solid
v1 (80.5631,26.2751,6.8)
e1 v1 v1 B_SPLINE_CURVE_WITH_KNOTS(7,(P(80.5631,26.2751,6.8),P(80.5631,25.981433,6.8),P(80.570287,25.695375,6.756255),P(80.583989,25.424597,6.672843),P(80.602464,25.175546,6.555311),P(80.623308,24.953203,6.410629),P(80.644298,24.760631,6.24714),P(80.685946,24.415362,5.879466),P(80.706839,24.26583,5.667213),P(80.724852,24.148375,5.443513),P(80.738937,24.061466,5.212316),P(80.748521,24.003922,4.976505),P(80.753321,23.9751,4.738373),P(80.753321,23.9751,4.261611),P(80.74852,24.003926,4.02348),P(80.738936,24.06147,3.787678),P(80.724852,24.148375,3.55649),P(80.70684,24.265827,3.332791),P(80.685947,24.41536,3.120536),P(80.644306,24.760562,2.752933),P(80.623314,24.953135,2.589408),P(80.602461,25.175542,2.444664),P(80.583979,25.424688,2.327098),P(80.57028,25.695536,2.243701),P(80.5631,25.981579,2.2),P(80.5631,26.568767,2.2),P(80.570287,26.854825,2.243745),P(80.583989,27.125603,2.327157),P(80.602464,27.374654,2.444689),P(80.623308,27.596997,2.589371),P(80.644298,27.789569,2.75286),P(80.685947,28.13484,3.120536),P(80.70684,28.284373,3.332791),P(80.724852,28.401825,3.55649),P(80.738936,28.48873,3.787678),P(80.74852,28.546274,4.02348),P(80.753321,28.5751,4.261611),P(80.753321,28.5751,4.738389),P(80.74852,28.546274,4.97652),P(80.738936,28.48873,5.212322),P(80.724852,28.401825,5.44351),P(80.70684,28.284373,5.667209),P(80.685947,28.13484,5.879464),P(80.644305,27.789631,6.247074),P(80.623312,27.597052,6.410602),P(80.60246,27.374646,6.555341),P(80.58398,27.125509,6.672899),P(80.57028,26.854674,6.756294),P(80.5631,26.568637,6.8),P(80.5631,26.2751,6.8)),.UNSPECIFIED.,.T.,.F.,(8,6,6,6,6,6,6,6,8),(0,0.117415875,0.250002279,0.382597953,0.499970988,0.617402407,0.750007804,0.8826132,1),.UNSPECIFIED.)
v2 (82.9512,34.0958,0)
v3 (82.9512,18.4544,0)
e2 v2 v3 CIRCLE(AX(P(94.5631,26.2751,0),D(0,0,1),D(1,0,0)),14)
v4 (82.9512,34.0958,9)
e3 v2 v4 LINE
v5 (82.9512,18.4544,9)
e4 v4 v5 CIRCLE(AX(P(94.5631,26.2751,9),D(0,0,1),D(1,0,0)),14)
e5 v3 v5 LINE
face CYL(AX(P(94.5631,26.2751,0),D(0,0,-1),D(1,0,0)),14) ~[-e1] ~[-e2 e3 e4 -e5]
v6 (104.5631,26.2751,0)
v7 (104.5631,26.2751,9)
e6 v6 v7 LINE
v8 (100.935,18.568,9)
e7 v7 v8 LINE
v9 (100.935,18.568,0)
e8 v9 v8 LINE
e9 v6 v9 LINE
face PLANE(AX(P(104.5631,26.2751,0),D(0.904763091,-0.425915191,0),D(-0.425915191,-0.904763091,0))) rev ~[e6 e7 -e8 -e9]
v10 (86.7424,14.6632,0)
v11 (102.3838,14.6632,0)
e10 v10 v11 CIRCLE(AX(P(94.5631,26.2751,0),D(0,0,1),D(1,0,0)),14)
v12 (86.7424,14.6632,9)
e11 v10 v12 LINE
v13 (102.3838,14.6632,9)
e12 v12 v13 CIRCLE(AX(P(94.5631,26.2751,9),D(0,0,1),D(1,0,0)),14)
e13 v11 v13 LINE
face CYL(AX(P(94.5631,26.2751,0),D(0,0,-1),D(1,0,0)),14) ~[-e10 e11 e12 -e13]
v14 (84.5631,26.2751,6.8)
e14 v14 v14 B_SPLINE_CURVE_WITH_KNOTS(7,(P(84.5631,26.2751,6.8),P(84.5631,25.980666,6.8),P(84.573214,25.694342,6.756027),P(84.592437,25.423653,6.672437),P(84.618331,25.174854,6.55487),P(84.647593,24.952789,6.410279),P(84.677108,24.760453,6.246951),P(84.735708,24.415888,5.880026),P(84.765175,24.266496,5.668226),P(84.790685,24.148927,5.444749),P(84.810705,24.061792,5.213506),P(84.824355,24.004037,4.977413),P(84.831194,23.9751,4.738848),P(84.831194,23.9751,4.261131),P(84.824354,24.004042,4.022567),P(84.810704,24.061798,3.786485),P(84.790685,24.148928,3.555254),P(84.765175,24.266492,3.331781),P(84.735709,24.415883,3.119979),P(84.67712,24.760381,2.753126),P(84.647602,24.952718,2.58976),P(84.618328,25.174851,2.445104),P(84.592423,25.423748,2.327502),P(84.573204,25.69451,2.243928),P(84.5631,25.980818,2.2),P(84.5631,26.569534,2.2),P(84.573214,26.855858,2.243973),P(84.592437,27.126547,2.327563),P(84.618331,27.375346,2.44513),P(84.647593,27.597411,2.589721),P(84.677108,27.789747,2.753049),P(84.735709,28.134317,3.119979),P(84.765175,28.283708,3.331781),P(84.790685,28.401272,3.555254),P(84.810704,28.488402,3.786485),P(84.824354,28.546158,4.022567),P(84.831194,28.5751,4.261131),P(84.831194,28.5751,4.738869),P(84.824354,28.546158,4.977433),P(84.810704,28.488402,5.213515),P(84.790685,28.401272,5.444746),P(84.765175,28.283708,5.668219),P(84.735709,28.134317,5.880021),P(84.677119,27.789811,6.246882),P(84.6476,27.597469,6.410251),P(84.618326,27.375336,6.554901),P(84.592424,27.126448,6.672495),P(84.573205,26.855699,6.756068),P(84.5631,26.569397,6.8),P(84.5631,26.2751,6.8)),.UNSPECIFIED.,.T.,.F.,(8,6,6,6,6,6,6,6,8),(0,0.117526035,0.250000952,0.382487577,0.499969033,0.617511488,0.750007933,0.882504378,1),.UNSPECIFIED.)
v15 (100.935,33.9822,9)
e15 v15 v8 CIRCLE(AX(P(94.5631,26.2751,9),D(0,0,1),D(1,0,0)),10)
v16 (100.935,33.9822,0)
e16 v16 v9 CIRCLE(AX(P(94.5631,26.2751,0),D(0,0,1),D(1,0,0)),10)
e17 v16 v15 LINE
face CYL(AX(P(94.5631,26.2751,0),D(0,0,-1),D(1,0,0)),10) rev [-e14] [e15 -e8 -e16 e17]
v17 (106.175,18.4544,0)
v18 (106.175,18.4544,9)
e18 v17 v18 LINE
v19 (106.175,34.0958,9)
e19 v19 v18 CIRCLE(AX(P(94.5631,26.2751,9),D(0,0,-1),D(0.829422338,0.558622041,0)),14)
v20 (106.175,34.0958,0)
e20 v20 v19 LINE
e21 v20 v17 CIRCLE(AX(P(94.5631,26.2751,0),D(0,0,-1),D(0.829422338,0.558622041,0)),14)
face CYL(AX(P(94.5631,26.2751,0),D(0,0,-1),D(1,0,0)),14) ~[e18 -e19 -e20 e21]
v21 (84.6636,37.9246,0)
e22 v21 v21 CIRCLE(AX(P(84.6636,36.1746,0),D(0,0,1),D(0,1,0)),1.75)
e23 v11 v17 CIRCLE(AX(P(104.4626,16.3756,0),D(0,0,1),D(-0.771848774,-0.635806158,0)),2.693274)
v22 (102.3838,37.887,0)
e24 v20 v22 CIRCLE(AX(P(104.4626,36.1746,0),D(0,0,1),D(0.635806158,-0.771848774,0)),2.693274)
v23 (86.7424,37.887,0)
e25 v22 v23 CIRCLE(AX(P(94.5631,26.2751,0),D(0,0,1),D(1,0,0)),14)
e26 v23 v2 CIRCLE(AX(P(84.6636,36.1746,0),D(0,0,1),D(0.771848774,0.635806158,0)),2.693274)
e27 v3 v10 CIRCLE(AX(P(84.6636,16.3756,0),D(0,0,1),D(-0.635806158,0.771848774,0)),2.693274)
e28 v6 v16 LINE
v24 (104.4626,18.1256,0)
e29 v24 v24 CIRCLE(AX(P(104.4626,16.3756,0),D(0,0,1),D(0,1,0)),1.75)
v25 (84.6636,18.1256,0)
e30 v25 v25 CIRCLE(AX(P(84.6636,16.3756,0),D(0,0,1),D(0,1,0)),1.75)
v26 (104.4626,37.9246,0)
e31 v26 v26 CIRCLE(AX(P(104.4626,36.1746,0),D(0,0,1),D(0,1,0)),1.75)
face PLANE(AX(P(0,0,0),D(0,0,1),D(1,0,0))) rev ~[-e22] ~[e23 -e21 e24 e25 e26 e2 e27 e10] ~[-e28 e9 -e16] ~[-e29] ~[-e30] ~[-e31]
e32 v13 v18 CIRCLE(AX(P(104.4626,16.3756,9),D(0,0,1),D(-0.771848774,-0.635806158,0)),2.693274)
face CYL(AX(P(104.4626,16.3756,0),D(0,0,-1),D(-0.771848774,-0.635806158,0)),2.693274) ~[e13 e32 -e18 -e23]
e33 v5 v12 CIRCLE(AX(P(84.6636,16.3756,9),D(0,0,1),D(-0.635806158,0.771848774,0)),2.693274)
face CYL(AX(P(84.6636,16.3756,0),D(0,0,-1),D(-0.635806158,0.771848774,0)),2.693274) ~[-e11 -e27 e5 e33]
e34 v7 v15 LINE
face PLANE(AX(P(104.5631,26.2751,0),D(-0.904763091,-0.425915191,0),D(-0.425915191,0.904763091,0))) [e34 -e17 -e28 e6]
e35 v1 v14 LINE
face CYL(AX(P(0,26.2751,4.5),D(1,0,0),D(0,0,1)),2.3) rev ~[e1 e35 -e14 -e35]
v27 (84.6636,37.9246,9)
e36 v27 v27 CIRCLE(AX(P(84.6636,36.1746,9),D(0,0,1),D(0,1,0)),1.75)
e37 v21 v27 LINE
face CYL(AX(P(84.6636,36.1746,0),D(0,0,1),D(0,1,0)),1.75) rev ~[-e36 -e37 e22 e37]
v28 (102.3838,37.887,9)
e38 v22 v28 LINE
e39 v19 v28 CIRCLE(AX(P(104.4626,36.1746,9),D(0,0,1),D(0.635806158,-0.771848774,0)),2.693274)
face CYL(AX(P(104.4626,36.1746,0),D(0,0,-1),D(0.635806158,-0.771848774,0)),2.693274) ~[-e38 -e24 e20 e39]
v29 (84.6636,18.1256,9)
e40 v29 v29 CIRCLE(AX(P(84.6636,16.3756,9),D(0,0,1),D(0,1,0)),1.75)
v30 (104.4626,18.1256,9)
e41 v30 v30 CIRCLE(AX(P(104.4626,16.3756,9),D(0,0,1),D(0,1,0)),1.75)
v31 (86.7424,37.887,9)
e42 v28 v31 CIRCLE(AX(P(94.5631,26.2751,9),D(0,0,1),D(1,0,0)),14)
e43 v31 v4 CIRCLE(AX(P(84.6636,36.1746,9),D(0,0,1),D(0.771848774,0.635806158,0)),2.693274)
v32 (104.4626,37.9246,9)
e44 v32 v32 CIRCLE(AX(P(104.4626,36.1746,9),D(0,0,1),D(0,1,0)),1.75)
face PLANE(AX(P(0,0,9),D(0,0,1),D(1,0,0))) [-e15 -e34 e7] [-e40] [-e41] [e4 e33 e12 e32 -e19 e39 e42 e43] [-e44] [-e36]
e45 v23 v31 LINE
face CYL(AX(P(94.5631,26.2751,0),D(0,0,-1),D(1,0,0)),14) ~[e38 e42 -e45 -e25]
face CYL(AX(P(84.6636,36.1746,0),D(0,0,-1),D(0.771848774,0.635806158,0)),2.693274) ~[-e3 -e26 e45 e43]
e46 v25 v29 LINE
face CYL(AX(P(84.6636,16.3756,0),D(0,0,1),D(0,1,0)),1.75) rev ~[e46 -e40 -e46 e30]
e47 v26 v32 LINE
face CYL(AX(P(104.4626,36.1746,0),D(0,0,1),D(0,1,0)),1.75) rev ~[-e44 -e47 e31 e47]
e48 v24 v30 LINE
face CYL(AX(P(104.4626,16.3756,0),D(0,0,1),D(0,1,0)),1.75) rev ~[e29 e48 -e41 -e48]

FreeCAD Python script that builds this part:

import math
import FreeCAD as App
import Part
import Sketcher

doc = App.newDocument("Part")
params = doc.addObject("Spreadsheet::Sheet", "Params")
for row, (alias, value) in enumerate([
    ("sketch1_radius", "14 mm"),
    ("sketch1_radius2", "10 mm"),
    ("pad1_length", "9 mm"),
    ("sketch2_diameter", "3.5 mm"),
    ("hole_diameter", "3.5 mm"),
    ("sketch3_diameter", "4.6 mm"),
    ("hole2_diameter", "4.6 mm"),
    ("hole2_depth", "87.5 mm"),
], start=1):
    params.set(f"A{row}", alias)
    params.set(f"B{row}", "=" + value)
    params.setAlias(f"B{row}", alias)

body = doc.addObject("PartDesign::Body", "Body")

# Sketch on XY plane
sketch1 = body.newObject("Sketcher::SketchObject", "Sketch")
sketch1.AttachmentSupport = (doc.getObject("XY_Plane"), [""])
sketch1.MapMode = "FlatFace"
sketch1.addGeometry(Part.ArcOfCircle(Part.Circle(App.Vector(94.6, 26.3, 0), App.Vector(0, 0, 1), 14), math.radians(56), math.radians(124)), False)
sketch1.addGeometry(Part.ArcOfCircle(Part.Circle(App.Vector(84.7, 36.2, 0), App.Vector(0, 0, 1), 2.7), math.radians(39), math.radians(231)), False)
sketch1.addGeometry(Part.ArcOfCircle(Part.Circle(App.Vector(94.6, 26.3, 0), App.Vector(0, 0, 1), 14), math.radians(146), math.radians(214)), False)
sketch1.addGeometry(Part.ArcOfCircle(Part.Circle(App.Vector(84.7, 16.4, 0), App.Vector(0, 0, 1), 2.7), math.radians(129), math.radians(321)), False)
sketch1.addGeometry(Part.ArcOfCircle(Part.Circle(App.Vector(94.6, 26.3, 0), App.Vector(0, 0, 1), 14), math.radians(-124), math.radians(-56)), False)
sketch1.addGeometry(Part.ArcOfCircle(Part.Circle(App.Vector(104.5, 16.4, 0), App.Vector(0, 0, 1), 2.7), math.radians(-141), math.radians(51)), False)
sketch1.addGeometry(Part.ArcOfCircle(Part.Circle(App.Vector(94.6, 26.3, 0), App.Vector(0, 0, 1), 14), math.radians(-34), math.radians(34)), False)
sketch1.addGeometry(Part.ArcOfCircle(Part.Circle(App.Vector(104.5, 36.2, 0), App.Vector(0, 0, 1), 2.7), math.radians(-51), math.radians(141)), False)
sketch1.addGeometry(Part.ArcOfCircle(Part.Circle(App.Vector(94.6, 26.3, 0), App.Vector(0, 0, 1), 10), math.radians(50), math.radians(310)), False)
sketch1.addGeometry(Part.LineSegment(App.Vector(100.9, 34, 0), App.Vector(104.6, 26.3, 0)), False)
sketch1.addGeometry(Part.LineSegment(App.Vector(104.6, 26.3, 0), App.Vector(100.9, 18.6, 0)), False)
sketch1.addConstraint(Sketcher.Constraint("Coincident", 0, 2, 1, 1))
sketch1.addConstraint(Sketcher.Constraint("Coincident", 1, 2, 2, 1))
sketch1.addConstraint(Sketcher.Constraint("Coincident", 2, 2, 3, 1))
sketch1.addConstraint(Sketcher.Constraint("Coincident", 3, 2, 4, 1))
sketch1.addConstraint(Sketcher.Constraint("Coincident", 4, 2, 5, 1))
sketch1.addConstraint(Sketcher.Constraint("Coincident", 5, 2, 6, 1))
sketch1.addConstraint(Sketcher.Constraint("Coincident", 6, 2, 7, 1))
sketch1.addConstraint(Sketcher.Constraint("Coincident", 7, 2, 0, 1))
sketch1.addConstraint(Sketcher.Constraint("Coincident", 8, 1, 9, 1))
sketch1.addConstraint(Sketcher.Constraint("Coincident", 9, 2, 10, 1))
sketch1.addConstraint(Sketcher.Constraint("Coincident", 10, 2, 8, 2))
sketch1.addConstraint(Sketcher.Constraint("Coincident", 2, 3, 0, 3))
sketch1.addConstraint(Sketcher.Constraint("Coincident", 4, 3, 0, 3))
sketch1.addConstraint(Sketcher.Constraint("Coincident", 6, 3, 0, 3))
sketch1.addConstraint(Sketcher.Constraint("Coincident", 8, 3, 0, 3))
sketch1.addConstraint(Sketcher.Constraint("Equal", 0, 2))
sketch1.addConstraint(Sketcher.Constraint("Equal", 1, 3))
sketch1.addConstraint(Sketcher.Constraint("Equal", 2, 4))
sketch1.addConstraint(Sketcher.Constraint("Equal", 3, 5))
sketch1.addConstraint(Sketcher.Constraint("Equal", 4, 6))
sketch1.addConstraint(Sketcher.Constraint("Equal", 5, 7))
sketch1.addConstraint(Sketcher.Constraint("Horizontal", 3, 3, 5, 3))
sketch1.addConstraint(Sketcher.Constraint("Horizontal", 1, 3, 7, 3))
sketch1.addConstraint(Sketcher.Constraint("Horizontal", 3, 2, 4, 2))
sketch1.addConstraint(Sketcher.Constraint("Horizontal", 1, 2, 6, 2))
sketch1.addConstraint(Sketcher.Constraint("Horizontal", 8, 3, 9, 2))
sketch1.addConstraint(Sketcher.Constraint("Vertical", 1, 3, 3, 3))
sketch1.addConstraint(Sketcher.Constraint("Vertical", 1, 2, 2, 2))
sketch1.addConstraint(Sketcher.Constraint("Vertical", 8, 1, 10, 2))
sketch1.addConstraint(Sketcher.Constraint("Radius", 0, 14.0))
sketch1.addConstraint(Sketcher.Constraint("Radius", 8, 10.0))
sketch1.addConstraint(Sketcher.Constraint("Radius", 1, 2.6933))
sketch1.addConstraint(Sketcher.Constraint("DistanceX", 8, 1, 6, 2, 5.24))
sketch1.addConstraint(Sketcher.Constraint("DistanceX", -1, 1, 0, 3, 94.563))
sketch1.addConstraint(Sketcher.Constraint("DistanceY", -1, 1, 0, 3, 26.275))
sketch1.addConstraint(Sketcher.Constraint("DistanceY", -1, 1, 0, 2, 37.887))
sketch1.addConstraint(Sketcher.Constraint("DistanceX", -1, 1, 5, 2, 106.175))
sketch1.addConstraint(Sketcher.Constraint("DistanceX", -1, 1, 9, 2, 104.563))
sketch1.setExpression("Constraints[29]", "Params.sketch1_radius")
sketch1.setExpression("Constraints[30]", "Params.sketch1_radius2")
pad1 = body.newObject("PartDesign::Pad", "Pad")
pad1.Profile = sketch1
pad1.setExpression("Length", "Params.pad1_length")

# Sketch on XY plane
sketch2 = body.newObject("Sketcher::SketchObject", "Sketch001")
sketch2.AttachmentSupport = (doc.getObject("XY_Plane"), [""])
sketch2.MapMode = "FlatFace"
sketch2.addGeometry(Part.Circle(App.Vector(104.5, 16.4, 0), App.Vector(0, 0, 1), 1.8), False)
sketch2.addGeometry(Part.Circle(App.Vector(84.7, 16.4, 0), App.Vector(0, 0, 1), 1.8), False)
sketch2.addGeometry(Part.Circle(App.Vector(84.7, 36.2, 0), App.Vector(0, 0, 1), 1.8), False)
sketch2.addGeometry(Part.Circle(App.Vector(104.5, 36.2, 0), App.Vector(0, 0, 1), 1.8), False)
sketch2.addConstraint(Sketcher.Constraint("Equal", 0, 1))
sketch2.addConstraint(Sketcher.Constraint("Equal", 1, 2))
sketch2.addConstraint(Sketcher.Constraint("Equal", 2, 3))
sketch2.addConstraint(Sketcher.Constraint("Horizontal", 0, 3, 1, 3))
sketch2.addConstraint(Sketcher.Constraint("Horizontal", 2, 3, 3, 3))
sketch2.addConstraint(Sketcher.Constraint("Vertical", 1, 3, 2, 3))
sketch2.addConstraint(Sketcher.Constraint("Vertical", 0, 3, 3, 3))
sketch2.addConstraint(Sketcher.Constraint("Diameter", 0, 3.5))
sketch2.addConstraint(Sketcher.Constraint("DistanceX", 1, 3, 0, 3, 19.799))
sketch2.addConstraint(Sketcher.Constraint("DistanceY", 1, 3, 2, 3, 19.799))
sketch2.addConstraint(Sketcher.Constraint("DistanceX", -1, 1, 0, 3, 104.4626))
sketch2.addConstraint(Sketcher.Constraint("DistanceY", -1, 1, 0, 3, 16.3756))
sketch2.setExpression("Constraints[7]", "Params.sketch2_diameter")
doc.recompute()
hole = body.newObject("PartDesign::Hole", "Hole")
hole.Profile = sketch2
hole.ThreadType = "None"
hole.setExpression("Diameter", "Params.hole_diameter")
hole.DepthType = "ThroughAll"
hole.Reversed = True

# Sketch on YZ plane
sketch3 = body.newObject("Sketcher::SketchObject", "Sketch002")
sketch3.AttachmentSupport = (doc.getObject("YZ_Plane"), [""])
sketch3.MapMode = "FlatFace"
sketch3.addGeometry(Part.Circle(App.Vector(26.3, 4.5, 0), App.Vector(0, 0, 1), 2.3), False)
sketch3.addConstraint(Sketcher.Constraint("Diameter", 0, 4.6))
sketch3.addConstraint(Sketcher.Constraint("DistanceY", -1, 1, 0, 3, 4.5))
sketch3.addConstraint(Sketcher.Constraint("DistanceX", -1, 1, 0, 3, 26.275))
sketch3.setExpression("Constraints[0]", "Params.sketch3_diameter")
doc.recompute()
hole2 = body.newObject("PartDesign::Hole", "Hole001")
hole2.Profile = sketch3
hole2.ThreadType = "None"
hole2.setExpression("Diameter", "Params.hole2_diameter")
hole2.DepthType = "Dimension"
hole2.setExpression("Depth", "Params.hole2_depth")
hole2.DrillPoint = "Angled"
hole2.DrillPointAngle = 118
hole2.Reversed = True

doc.recompute()
